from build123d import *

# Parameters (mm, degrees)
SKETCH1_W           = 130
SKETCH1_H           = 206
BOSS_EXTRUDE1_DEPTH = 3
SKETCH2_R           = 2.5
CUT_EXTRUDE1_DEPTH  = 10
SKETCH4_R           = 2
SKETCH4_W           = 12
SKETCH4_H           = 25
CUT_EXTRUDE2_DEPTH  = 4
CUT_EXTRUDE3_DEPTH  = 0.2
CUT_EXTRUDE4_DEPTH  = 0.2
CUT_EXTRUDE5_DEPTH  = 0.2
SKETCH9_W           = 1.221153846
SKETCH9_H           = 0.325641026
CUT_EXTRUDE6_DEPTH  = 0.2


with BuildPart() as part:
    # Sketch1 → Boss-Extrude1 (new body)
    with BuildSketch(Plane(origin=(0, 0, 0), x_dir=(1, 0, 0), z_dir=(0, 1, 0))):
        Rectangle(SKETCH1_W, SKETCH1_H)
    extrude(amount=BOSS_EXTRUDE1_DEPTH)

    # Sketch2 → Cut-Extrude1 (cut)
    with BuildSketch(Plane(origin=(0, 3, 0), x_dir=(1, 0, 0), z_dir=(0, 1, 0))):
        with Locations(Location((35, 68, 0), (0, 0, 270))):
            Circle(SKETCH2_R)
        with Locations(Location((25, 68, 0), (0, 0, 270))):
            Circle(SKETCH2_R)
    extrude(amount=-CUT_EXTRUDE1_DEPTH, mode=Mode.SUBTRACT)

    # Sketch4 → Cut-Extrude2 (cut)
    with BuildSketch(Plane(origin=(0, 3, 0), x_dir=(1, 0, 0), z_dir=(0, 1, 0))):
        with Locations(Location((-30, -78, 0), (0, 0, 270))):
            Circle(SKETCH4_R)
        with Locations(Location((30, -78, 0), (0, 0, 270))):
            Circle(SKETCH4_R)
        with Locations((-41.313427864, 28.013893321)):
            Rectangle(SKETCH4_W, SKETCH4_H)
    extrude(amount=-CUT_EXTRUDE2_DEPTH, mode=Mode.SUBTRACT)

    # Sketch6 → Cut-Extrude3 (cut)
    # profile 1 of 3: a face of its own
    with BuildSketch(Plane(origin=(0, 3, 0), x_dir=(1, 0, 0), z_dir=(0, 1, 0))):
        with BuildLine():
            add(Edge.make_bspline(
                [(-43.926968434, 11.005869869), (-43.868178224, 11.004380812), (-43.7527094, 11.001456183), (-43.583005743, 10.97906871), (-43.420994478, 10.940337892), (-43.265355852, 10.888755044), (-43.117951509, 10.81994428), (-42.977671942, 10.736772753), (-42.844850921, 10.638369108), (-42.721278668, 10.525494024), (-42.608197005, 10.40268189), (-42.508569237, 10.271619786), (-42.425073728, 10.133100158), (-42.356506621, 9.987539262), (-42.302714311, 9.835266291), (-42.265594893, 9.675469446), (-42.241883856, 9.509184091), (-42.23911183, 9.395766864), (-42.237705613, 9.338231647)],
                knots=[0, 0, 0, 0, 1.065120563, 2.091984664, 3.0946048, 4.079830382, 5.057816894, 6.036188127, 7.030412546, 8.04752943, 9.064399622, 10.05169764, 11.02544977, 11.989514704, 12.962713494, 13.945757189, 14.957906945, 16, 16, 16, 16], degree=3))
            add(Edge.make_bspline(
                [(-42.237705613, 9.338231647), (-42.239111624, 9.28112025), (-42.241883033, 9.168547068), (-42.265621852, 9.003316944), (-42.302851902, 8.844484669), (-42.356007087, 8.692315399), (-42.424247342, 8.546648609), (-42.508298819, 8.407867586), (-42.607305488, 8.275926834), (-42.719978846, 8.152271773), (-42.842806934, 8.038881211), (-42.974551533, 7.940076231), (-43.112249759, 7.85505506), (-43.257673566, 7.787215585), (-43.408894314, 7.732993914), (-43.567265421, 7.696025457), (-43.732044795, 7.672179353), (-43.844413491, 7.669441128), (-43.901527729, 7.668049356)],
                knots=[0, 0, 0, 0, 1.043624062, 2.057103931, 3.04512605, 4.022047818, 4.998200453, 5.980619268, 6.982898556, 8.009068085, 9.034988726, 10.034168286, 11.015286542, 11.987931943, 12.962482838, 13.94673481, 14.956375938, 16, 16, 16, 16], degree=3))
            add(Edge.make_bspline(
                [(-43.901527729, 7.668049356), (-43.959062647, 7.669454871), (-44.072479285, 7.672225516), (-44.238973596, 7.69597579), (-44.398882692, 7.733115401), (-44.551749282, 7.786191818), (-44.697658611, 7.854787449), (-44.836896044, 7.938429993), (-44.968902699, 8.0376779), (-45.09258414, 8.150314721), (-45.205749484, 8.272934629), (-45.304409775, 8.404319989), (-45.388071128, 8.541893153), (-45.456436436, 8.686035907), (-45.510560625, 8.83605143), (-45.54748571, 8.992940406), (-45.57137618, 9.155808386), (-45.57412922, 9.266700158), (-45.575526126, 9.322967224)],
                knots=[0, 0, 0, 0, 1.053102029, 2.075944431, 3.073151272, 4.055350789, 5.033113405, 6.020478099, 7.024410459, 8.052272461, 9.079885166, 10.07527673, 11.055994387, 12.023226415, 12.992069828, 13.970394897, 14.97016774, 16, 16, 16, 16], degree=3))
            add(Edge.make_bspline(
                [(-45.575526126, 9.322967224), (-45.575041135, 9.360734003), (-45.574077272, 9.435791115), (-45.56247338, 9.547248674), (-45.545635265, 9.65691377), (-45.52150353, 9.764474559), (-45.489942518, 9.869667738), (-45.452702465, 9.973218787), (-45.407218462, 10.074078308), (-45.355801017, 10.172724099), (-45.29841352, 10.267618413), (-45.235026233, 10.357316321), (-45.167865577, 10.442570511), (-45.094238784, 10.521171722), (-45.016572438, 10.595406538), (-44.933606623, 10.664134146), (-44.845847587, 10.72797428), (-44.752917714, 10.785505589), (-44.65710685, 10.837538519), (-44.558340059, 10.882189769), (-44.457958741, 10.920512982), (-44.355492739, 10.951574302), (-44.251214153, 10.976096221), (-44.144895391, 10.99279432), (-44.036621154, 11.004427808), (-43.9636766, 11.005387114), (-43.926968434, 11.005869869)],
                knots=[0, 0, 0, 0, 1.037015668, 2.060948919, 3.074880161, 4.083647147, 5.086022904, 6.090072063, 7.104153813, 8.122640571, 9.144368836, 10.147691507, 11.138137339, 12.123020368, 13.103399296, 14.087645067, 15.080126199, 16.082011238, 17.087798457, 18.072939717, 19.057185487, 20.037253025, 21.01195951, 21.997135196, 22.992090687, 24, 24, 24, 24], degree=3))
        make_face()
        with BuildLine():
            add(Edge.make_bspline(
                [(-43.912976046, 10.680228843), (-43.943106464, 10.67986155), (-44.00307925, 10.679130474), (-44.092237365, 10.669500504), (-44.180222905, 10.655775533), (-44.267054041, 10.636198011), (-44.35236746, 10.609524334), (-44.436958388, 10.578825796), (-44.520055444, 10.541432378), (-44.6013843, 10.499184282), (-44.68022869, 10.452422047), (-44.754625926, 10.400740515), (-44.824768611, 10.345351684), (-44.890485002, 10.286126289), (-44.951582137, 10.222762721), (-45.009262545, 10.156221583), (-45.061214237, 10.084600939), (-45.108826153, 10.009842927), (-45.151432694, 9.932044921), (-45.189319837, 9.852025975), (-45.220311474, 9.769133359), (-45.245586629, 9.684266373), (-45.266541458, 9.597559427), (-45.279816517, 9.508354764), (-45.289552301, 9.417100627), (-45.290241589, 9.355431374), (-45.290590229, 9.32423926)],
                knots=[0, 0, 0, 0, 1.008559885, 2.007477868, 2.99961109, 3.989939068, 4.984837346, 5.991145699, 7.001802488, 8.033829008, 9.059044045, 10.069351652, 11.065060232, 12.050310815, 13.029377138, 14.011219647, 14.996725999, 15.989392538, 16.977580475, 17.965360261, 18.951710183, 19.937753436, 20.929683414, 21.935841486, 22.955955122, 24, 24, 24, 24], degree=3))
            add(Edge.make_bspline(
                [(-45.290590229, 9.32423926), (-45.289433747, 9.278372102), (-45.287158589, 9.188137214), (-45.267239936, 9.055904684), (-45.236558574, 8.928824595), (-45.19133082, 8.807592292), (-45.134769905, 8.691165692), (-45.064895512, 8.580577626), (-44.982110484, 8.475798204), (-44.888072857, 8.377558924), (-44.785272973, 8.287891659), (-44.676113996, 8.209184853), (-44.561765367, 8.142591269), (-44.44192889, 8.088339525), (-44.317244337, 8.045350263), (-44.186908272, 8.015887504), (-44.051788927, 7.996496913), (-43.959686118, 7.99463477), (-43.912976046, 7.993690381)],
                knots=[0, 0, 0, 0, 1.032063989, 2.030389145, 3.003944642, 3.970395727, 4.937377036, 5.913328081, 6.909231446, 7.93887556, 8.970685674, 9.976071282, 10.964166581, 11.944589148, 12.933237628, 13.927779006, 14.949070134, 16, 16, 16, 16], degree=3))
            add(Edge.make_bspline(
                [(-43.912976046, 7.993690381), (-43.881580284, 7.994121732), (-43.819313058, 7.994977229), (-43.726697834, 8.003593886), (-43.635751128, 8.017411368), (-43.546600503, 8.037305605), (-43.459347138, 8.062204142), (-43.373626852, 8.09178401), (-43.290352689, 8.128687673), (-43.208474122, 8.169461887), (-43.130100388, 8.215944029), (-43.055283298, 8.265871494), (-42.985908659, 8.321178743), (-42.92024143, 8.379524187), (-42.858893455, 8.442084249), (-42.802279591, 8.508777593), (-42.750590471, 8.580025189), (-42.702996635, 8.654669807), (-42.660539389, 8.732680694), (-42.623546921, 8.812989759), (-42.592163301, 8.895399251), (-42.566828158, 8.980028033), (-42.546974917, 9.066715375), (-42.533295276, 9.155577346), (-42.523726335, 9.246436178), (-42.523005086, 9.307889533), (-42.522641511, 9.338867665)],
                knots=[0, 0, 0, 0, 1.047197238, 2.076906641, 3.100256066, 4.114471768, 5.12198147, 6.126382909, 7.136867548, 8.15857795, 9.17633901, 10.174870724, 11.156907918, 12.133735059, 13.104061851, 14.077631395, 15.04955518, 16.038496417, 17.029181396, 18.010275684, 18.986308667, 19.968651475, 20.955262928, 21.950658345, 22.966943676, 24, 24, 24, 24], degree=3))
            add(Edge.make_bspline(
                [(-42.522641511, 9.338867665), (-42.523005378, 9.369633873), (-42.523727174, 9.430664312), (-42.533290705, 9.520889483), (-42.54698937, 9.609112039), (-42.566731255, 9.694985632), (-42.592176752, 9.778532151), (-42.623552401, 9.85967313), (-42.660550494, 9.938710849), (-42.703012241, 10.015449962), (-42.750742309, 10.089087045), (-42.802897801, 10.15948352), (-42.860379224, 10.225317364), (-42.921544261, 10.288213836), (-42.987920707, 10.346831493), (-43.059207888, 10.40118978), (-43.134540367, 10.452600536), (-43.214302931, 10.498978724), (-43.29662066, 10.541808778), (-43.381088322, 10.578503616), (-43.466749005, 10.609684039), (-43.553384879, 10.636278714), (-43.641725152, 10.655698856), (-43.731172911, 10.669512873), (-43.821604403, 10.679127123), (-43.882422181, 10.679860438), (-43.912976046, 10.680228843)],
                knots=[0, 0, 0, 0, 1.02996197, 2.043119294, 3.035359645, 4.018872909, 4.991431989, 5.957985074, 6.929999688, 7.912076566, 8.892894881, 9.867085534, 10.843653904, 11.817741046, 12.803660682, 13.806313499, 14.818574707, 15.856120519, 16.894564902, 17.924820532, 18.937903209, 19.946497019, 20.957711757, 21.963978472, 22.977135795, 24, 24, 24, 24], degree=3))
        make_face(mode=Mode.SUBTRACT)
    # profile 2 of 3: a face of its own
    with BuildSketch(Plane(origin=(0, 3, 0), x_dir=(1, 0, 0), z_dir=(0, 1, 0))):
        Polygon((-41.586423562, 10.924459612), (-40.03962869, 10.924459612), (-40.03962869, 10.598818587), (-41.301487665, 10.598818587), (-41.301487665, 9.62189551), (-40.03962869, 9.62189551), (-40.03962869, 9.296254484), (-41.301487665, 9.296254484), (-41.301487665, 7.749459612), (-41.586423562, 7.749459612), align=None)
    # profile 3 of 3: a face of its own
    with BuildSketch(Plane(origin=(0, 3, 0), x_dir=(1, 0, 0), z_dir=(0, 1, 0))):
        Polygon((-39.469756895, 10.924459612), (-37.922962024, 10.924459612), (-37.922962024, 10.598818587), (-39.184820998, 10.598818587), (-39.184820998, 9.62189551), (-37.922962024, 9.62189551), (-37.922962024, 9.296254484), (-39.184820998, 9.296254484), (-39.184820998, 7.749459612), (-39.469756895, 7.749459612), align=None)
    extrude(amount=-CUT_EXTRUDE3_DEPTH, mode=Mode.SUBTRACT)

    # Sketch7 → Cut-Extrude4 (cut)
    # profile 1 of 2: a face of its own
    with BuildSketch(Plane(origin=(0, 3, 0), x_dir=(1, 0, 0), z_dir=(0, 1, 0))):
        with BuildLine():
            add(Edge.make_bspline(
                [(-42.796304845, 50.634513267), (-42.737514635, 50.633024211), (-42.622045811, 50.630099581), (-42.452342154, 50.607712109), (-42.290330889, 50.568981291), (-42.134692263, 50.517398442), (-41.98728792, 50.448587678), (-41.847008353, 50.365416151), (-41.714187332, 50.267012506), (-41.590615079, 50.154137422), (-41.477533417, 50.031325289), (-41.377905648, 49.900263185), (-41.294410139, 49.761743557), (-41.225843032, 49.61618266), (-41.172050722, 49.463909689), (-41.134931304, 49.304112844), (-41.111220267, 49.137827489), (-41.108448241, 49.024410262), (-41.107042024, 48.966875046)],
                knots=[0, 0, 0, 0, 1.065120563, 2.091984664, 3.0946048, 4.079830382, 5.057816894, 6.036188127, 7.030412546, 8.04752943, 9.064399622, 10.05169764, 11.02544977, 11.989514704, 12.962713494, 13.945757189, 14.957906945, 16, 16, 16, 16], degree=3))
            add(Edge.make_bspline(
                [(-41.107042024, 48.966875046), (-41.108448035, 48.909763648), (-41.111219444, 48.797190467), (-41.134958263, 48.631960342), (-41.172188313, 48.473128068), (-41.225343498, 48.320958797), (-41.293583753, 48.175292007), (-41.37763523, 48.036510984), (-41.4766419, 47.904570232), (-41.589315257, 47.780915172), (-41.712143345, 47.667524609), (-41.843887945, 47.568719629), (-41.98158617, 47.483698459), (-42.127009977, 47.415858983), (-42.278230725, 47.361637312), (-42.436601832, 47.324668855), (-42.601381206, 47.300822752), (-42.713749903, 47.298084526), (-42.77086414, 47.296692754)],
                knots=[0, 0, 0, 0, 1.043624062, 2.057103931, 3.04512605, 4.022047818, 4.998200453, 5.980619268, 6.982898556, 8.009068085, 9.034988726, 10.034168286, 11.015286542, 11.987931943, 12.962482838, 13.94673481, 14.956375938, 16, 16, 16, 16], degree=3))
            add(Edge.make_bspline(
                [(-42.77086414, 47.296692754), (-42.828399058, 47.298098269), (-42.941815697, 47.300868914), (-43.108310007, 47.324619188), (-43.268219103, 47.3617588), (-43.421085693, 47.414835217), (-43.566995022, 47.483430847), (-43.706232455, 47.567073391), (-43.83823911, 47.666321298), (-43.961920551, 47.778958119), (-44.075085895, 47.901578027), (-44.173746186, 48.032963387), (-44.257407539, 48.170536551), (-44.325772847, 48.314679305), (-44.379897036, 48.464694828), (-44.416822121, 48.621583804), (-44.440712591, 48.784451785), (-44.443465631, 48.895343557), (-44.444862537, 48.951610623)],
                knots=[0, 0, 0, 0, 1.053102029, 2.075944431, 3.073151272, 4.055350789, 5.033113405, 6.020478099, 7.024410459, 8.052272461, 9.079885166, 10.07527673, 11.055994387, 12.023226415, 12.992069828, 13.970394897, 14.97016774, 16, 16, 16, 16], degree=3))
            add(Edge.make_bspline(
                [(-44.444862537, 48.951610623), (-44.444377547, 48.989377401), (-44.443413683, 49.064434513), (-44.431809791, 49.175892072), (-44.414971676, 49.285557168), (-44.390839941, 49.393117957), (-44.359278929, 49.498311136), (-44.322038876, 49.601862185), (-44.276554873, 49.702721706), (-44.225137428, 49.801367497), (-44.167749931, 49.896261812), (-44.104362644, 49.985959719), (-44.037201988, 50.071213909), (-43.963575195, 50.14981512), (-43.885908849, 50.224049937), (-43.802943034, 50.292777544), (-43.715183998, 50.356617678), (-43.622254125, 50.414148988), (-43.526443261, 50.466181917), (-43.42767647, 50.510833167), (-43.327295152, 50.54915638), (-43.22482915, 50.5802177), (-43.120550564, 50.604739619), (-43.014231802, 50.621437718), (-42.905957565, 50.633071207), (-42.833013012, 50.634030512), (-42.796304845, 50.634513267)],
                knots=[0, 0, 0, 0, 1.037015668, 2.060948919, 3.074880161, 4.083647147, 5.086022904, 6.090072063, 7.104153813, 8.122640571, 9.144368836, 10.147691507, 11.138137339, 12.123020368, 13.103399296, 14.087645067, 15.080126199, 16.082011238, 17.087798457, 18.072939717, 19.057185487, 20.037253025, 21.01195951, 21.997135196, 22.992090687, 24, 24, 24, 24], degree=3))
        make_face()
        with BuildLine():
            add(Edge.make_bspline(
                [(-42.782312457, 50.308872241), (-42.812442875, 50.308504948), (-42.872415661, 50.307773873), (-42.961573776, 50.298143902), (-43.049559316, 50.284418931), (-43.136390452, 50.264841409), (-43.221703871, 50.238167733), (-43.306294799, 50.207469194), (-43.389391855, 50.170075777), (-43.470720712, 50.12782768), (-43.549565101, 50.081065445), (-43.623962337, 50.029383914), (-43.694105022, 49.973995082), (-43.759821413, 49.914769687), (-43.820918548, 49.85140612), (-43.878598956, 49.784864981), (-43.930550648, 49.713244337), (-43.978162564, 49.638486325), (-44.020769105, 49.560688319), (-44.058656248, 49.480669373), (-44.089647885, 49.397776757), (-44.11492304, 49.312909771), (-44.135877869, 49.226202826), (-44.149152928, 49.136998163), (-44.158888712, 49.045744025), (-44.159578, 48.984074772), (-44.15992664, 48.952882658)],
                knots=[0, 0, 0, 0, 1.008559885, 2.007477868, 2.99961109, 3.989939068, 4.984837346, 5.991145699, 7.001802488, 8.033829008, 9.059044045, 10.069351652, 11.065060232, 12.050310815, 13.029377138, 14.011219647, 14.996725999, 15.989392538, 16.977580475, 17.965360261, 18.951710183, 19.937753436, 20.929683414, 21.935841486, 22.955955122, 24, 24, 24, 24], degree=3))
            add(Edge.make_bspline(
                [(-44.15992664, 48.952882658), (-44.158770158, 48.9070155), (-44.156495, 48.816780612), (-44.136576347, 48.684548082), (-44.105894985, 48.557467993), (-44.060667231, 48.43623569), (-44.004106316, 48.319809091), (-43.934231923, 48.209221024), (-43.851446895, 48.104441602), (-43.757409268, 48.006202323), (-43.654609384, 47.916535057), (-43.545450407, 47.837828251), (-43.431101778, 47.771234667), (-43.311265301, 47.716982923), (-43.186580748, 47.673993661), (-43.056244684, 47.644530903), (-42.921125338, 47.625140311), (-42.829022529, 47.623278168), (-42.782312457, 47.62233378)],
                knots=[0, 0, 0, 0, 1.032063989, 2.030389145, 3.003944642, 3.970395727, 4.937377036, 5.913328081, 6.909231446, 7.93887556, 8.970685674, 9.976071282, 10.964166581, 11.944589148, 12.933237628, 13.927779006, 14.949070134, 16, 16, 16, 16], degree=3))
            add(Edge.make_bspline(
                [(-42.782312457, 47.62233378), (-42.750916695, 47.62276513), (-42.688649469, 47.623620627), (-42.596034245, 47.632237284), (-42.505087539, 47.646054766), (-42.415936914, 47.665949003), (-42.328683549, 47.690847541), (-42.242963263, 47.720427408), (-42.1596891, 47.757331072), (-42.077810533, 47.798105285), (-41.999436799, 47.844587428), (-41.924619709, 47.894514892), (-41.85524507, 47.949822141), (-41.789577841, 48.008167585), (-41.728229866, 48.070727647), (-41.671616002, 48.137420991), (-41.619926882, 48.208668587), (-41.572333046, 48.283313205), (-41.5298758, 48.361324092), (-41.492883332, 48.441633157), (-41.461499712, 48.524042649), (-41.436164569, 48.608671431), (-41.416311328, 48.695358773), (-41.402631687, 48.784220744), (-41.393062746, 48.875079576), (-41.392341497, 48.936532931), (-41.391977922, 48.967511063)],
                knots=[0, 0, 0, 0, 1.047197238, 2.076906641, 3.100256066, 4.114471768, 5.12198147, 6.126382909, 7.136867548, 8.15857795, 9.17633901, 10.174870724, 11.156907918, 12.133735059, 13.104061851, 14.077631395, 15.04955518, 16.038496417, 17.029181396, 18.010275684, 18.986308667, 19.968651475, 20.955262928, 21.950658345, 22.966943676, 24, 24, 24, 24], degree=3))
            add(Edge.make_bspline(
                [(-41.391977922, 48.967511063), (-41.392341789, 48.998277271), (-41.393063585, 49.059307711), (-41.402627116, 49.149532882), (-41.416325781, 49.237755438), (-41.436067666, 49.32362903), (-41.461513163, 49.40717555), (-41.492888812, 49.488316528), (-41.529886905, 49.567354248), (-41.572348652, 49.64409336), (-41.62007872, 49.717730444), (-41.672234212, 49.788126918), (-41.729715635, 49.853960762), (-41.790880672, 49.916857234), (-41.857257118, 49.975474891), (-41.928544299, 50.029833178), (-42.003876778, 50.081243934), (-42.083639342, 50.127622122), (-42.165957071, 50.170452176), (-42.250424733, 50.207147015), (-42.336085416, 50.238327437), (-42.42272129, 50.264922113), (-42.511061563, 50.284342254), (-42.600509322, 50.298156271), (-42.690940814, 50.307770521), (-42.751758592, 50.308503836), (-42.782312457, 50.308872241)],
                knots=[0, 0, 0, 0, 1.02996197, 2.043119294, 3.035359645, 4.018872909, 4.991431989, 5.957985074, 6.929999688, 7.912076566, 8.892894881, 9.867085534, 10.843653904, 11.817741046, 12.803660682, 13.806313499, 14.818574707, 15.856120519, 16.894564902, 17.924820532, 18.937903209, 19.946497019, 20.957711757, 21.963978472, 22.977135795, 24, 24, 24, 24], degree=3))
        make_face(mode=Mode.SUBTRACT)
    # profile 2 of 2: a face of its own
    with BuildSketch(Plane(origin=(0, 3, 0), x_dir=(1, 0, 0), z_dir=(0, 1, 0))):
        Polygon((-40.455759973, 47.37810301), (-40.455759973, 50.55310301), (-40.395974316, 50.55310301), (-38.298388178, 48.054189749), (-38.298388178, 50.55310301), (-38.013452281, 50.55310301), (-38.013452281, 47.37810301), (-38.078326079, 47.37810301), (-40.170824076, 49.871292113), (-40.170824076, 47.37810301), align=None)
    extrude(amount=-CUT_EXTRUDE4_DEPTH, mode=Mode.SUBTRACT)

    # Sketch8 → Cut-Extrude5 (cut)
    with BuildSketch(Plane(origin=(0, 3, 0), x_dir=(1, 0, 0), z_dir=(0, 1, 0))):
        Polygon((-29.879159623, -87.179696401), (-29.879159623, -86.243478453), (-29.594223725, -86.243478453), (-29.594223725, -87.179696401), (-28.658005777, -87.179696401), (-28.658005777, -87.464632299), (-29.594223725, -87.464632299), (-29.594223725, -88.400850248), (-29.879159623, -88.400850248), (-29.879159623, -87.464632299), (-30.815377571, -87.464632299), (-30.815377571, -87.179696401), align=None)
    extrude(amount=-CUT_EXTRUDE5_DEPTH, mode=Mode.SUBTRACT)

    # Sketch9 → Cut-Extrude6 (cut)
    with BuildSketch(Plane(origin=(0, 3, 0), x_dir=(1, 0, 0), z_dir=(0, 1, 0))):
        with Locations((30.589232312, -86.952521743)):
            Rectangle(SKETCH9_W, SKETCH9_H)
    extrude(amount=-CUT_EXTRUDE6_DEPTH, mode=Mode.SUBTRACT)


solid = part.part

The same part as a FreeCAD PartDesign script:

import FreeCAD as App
import Part
import Sketcher

V = App.Vector
Q = App.Units.Quantity


def add_polygon(sketch, points):
    """Adds a closed chain of lines whose ends are joined by coincident constraints."""
    first, n = sketch.GeometryCount, len(points)
    for a, b in zip(points, points[1:] + points[:1]):
        sketch.addGeometry(Part.LineSegment(App.Vector(*a, 0), App.Vector(*b, 0)), False)
    for i in range(n):
        sketch.addConstraint(Sketcher.Constraint("Coincident", first + i, 2, first + (i + 1) % n, 1))

doc = App.newDocument("Part")
body = doc.addObject("PartDesign::Body", "Body")

# Sketch on XZ plane
sketch1 = body.newObject("Sketcher::SketchObject", "Sketch")
sketch1.AttachmentSupport = (doc.getObject("XZ_Plane"), [""])
sketch1.MapMode = "FlatFace"
add_polygon(sketch1, [(-65, -103), (-65, 103), (65, 103), (65, -103)])  # lines 0-3
sketch1.addConstraint([
    Sketcher.Constraint("Vertical", 0),
    Sketcher.Constraint("Horizontal", 1),
    Sketcher.Constraint("Vertical", 2),
    Sketcher.Constraint("Horizontal", 3),
    Sketcher.Constraint("Symmetric", 0, 2, 2, 2, -1, 1),
    Sketcher.Constraint("DistanceX", 1, 1, 1, 2, Q("130 mm")),
    Sketcher.Constraint("DistanceY", 0, 1, 0, 2, Q("206 mm")),
])
pad1 = body.newObject("PartDesign::Pad", "Pad")
pad1.Profile = sketch1
pad1.Length = 3
pad1.Reversed = True

# Sketch on XZ plane
sketch2 = body.newObject("Sketcher::SketchObject", "Sketch001")
sketch2.AttachmentSupport = (doc.getObject("XZ_Plane"), [""])
sketch2.MapMode = "FlatFace"
sketch2.AttachmentOffset = App.Placement(V(0, 0, -3), App.Rotation())
sketch2.addGeometry([
    Part.Circle(V(35, -68, 0), V(0, 0, 1), 2.5),
    Part.Circle(V(25, -68, 0), V(0, 0, 1), 2.5),
], False)
sketch2.addConstraint([
    Sketcher.Constraint("Equal", 0, 1),
    Sketcher.Constraint("Horizontal", 0, 3, 1, 3),
    Sketcher.Constraint("Diameter", 0, Q("5 mm")),
    Sketcher.Constraint("DistanceX", -1, 1, 0, 3, Q("35 mm")),
    Sketcher.Constraint("DistanceY", 0, 3, -1, 1, Q("68 mm")),
    Sketcher.Constraint("DistanceX", -1, 1, 1, 3, Q("25 mm")),
])
pocket1 = body.newObject("PartDesign::Pocket", "Pocket")
pocket1.Profile = sketch2
pocket1.Length = 10
pocket1.Reversed = True

# Sketch on XZ plane
sketch3 = body.newObject("Sketcher::SketchObject", "Sketch002")
sketch3.AttachmentSupport = (doc.getObject("XZ_Plane"), [""])
sketch3.MapMode = "FlatFace"
sketch3.AttachmentOffset = App.Placement(V(0, 0, -3), App.Rotation())
sketch3.addGeometry(Part.Circle(V(-30, 78, 0), V(0, 0, 1), 2), False)  # 0
sketch3.addGeometry(Part.Circle(V(30, 78, 0), V(0, 0, 1), 2), False)  # 1
add_polygon(sketch3, [(-47.3, -40.5), (-47.3, -15.5), (-35.3, -15.5), (-35.3, -40.5)])  # lines 2-5
sketch3.addConstraint([
    Sketcher.Constraint("Vertical", 2),
    Sketcher.Constraint("Horizontal", 3),
    Sketcher.Constraint("Vertical", 4),
    Sketcher.Constraint("Horizontal", 5),
    Sketcher.Constraint("Equal", 0, 1),
    Sketcher.Constraint("Symmetric", 0, 3, 1, 3, -2),
    Sketcher.Constraint("Diameter", 0, Q("4 mm")),
    Sketcher.Constraint("DistanceX", 3, 1, 3, 2, Q("12 mm")),
    Sketcher.Constraint("DistanceY", 2, 1, 2, 2, Q("25 mm")),
    Sketcher.Constraint("DistanceX", 0, 3, -1, 1, Q("30 mm")),
    Sketcher.Constraint("DistanceY", -1, 1, 0, 3, Q("78 mm")),
    Sketcher.Constraint("DistanceX", 2, 2, -1, 1, Q("47.313428 mm")),
    Sketcher.Constraint("DistanceY", 2, 2, -1, 1, Q("15.513893 mm")),
])
pocket2 = body.newObject("PartDesign::Pocket", "Pocket001")
pocket2.Profile = sketch3
pocket2.Length = 4
pocket2.Reversed = True

# Sketch on XZ plane
sketch4 = body.newObject("Sketcher::SketchObject", "Sketch003")
sketch4.AttachmentSupport = (doc.getObject("XZ_Plane"), [""])
sketch4.MapMode = "FlatFace"
sketch4.AttachmentOffset = App.Placement(V(0, 0, -3), App.Rotation())
sketch4.addGeometry(Part.BSplineCurve([V(-43.926968, -11.00587, 0), V(-43.868178, -11.004381, 0), V(-43.752709, -11.001456, 0), V(-43.583006, -10.979069, 0), V(-43.420994, -10.940338, 0), V(-43.265356, -10.888755, 0), V(-43.117952, -10.819944, 0), V(-42.977672, -10.736773, 0), V(-42.844851, -10.638369, 0), V(-42.721279, -10.525494, 0), V(-42.608197, -10.402682, 0), V(-42.508569, -10.27162, 0), V(-42.425074, -10.1331, 0), V(-42.356507, -9.987539, 0), V(-42.302714, -9.835266, 0), V(-42.265595, -9.675469, 0), V(-42.241884, -9.509184, 0), V(-42.239112, -9.395767, 0), V(-42.237706, -9.338232, 0)], [4, 1, 1, 1, 1, 1, 1, 1, 1, 1, 1, 1, 1, 1, 1, 1, 4], [0, 1.065120563, 2.091984664, 3.0946048, 4.079830382, 5.057816894, 6.036188127, 7.030412546, 8.04752943, 9.064399622, 10.05169764, 11.02544977, 11.989514704, 12.962713494, 13.945757189, 14.957906945, 16], False, 3, [1, 1, 1, 1, 1, 1, 1, 1, 1, 1, 1, 1, 1, 1, 1, 1, 1, 1, 1], False), False)  # 0
sketch4.addGeometry(Part.BSplineCurve([V(-45.575526, -9.322967, 0), V(-45.575041, -9.360734, 0), V(-45.574077, -9.435791, 0), V(-45.562473, -9.547249, 0), V(-45.545635, -9.656914, 0), V(-45.521504, -9.764475, 0), V(-45.489943, -9.869668, 0), V(-45.452702, -9.973219, 0), V(-45.407218, -10.074078, 0), V(-45.355801, -10.172724, 0), V(-45.298414, -10.267618, 0), V(-45.235026, -10.357316, 0), V(-45.167866, -10.442571, 0), V(-45.094239, -10.521172, 0), V(-45.016572, -10.595407, 0), V(-44.933607, -10.664134, 0), V(-44.845848, -10.727974, 0), V(-44.752918, -10.785506, 0), V(-44.657107, -10.837539, 0), V(-44.55834, -10.88219, 0), V(-44.457959, -10.920513, 0), V(-44.355493, -10.951574, 0), V(-44.251214, -10.976096, 0), V(-44.144895, -10.992794, 0), V(-44.036621, -11.004428, 0), V(-43.963677, -11.005387, 0), V(-43.926968, -11.00587, 0)], [4, 1, 1, 1, 1, 1, 1, 1, 1, 1, 1, 1, 1, 1, 1, 1, 1, 1, 1, 1, 1, 1, 1, 1, 4], [0, 1.037015668, 2.060948919, 3.074880161, 4.083647147, 5.086022904, 6.090072063, 7.104153813, 8.122640571, 9.144368836, 10.147691507, 11.138137339, 12.123020368, 13.103399296, 14.087645067, 15.080126199, 16.082011238, 17.087798457, 18.072939717, 19.057185487, 20.037253025, 21.01195951, 21.997135196, 22.992090687, 24], False, 3, [1, 1, 1, 1, 1, 1, 1, 1, 1, 1, 1, 1, 1, 1, 1, 1, 1, 1, 1, 1, 1, 1, 1, 1, 1, 1, 1], False), False)  # 1
sketch4.addGeometry(Part.BSplineCurve([V(-43.901528, -7.668049, 0), V(-43.959063, -7.669455, 0), V(-44.072479, -7.672226, 0), V(-44.238974, -7.695976, 0), V(-44.398883, -7.733115, 0), V(-44.551749, -7.786192, 0), V(-44.697659, -7.854787, 0), V(-44.836896, -7.93843, 0), V(-44.968903, -8.037678, 0), V(-45.092584, -8.150315, 0), V(-45.205749, -8.272935, 0), V(-45.30441, -8.40432, 0), V(-45.388071, -8.541893, 0), V(-45.456436, -8.686036, 0), V(-45.510561, -8.836051, 0), V(-45.547486, -8.99294, 0), V(-45.571376, -9.155808, 0), V(-45.574129, -9.2667, 0), V(-45.575526, -9.322967, 0)], [4, 1, 1, 1, 1, 1, 1, 1, 1, 1, 1, 1, 1, 1, 1, 1, 4], [0, 1.053102029, 2.075944431, 3.073151272, 4.055350789, 5.033113405, 6.020478099, 7.024410459, 8.052272461, 9.079885166, 10.07527673, 11.055994387, 12.023226415, 12.992069828, 13.970394897, 14.97016774, 16], False, 3, [1, 1, 1, 1, 1, 1, 1, 1, 1, 1, 1, 1, 1, 1, 1, 1, 1, 1, 1], False), False)  # 2
sketch4.addGeometry(Part.BSplineCurve([V(-42.237706, -9.338232, 0), V(-42.239112, -9.28112, 0), V(-42.241883, -9.168547, 0), V(-42.265622, -9.003317, 0), V(-42.302852, -8.844485, 0), V(-42.356007, -8.692315, 0), V(-42.424247, -8.546649, 0), V(-42.508299, -8.407868, 0), V(-42.607305, -8.275927, 0), V(-42.719979, -8.152272, 0), V(-42.842807, -8.038881, 0), V(-42.974552, -7.940076, 0), V(-43.11225, -7.855055, 0), V(-43.257674, -7.787216, 0), V(-43.408894, -7.732994, 0), V(-43.567265, -7.696025, 0), V(-43.732045, -7.672179, 0), V(-43.844413, -7.669441, 0), V(-43.901528, -7.668049, 0)], [4, 1, 1, 1, 1, 1, 1, 1, 1, 1, 1, 1, 1, 1, 1, 1, 4], [0, 1.043624062, 2.057103931, 3.04512605, 4.022047818, 4.998200453, 5.980619268, 6.982898556, 8.009068085, 9.034988726, 10.034168286, 11.015286542, 11.987931943, 12.962482838, 13.94673481, 14.956375938, 16], False, 3, [1, 1, 1, 1, 1, 1, 1, 1, 1, 1, 1, 1, 1, 1, 1, 1, 1, 1, 1], False), False)  # 3
sketch4.addGeometry(Part.BSplineCurve([V(-42.522642, -9.338868, 0), V(-42.523005, -9.369634, 0), V(-42.523727, -9.430664, 0), V(-42.533291, -9.520889, 0), V(-42.546989, -9.609112, 0), V(-42.566731, -9.694986, 0), V(-42.592177, -9.778532, 0), V(-42.623552, -9.859673, 0), V(-42.66055, -9.938711, 0), V(-42.703012, -10.01545, 0), V(-42.750742, -10.089087, 0), V(-42.802898, -10.159484, 0), V(-42.860379, -10.225317, 0), V(-42.921544, -10.288214, 0), V(-42.987921, -10.346831, 0), V(-43.059208, -10.40119, 0), V(-43.13454, -10.452601, 0), V(-43.214303, -10.498979, 0), V(-43.296621, -10.541809, 0), V(-43.381088, -10.578504, 0), V(-43.466749, -10.609684, 0), V(-43.553385, -10.636279, 0), V(-43.641725, -10.655699, 0), V(-43.731173, -10.669513, 0), V(-43.821604, -10.679127, 0), V(-43.882422, -10.67986, 0), V(-43.912976, -10.680229, 0)], [4, 1, 1, 1, 1, 1, 1, 1, 1, 1, 1, 1, 1, 1, 1, 1, 1, 1, 1, 1, 1, 1, 1, 1, 4], [0, 1.02996197, 2.043119294, 3.035359645, 4.018872909, 4.991431989, 5.957985074, 6.929999688, 7.912076566, 8.892894881, 9.867085534, 10.843653904, 11.817741046, 12.803660682, 13.806313499, 14.818574707, 15.856120519, 16.894564902, 17.924820532, 18.937903209, 19.946497019, 20.957711757, 21.963978472, 22.977135795, 24], False, 3, [1, 1, 1, 1, 1, 1, 1, 1, 1, 1, 1, 1, 1, 1, 1, 1, 1, 1, 1, 1, 1, 1, 1, 1, 1, 1, 1], False), False)  # 4
sketch4.addGeometry(Part.BSplineCurve([V(-43.912976, -7.99369, 0), V(-43.88158, -7.994122, 0), V(-43.819313, -7.994977, 0), V(-43.726698, -8.003594, 0), V(-43.635751, -8.017411, 0), V(-43.546601, -8.037306, 0), V(-43.459347, -8.062204, 0), V(-43.373627, -8.091784, 0), V(-43.290353, -8.128688, 0), V(-43.208474, -8.169462, 0), V(-43.1301, -8.215944, 0), V(-43.055283, -8.265871, 0), V(-42.985909, -8.321179, 0), V(-42.920241, -8.379524, 0), V(-42.858893, -8.442084, 0), V(-42.80228, -8.508778, 0), V(-42.75059, -8.580025, 0), V(-42.702997, -8.65467, 0), V(-42.660539, -8.732681, 0), V(-42.623547, -8.81299, 0), V(-42.592163, -8.895399, 0), V(-42.566828, -8.980028, 0), V(-42.546975, -9.066715, 0), V(-42.533295, -9.155577, 0), V(-42.523726, -9.246436, 0), V(-42.523005, -9.30789, 0), V(-42.522642, -9.338868, 0)], [4, 1, 1, 1, 1, 1, 1, 1, 1, 1, 1, 1, 1, 1, 1, 1, 1, 1, 1, 1, 1, 1, 1, 1, 4], [0, 1.047197238, 2.076906641, 3.100256066, 4.114471768, 5.12198147, 6.126382909, 7.136867548, 8.15857795, 9.17633901, 10.174870724, 11.156907918, 12.133735059, 13.104061851, 14.077631395, 15.04955518, 16.038496417, 17.029181396, 18.010275684, 18.986308667, 19.968651475, 20.955262928, 21.950658345, 22.966943676, 24], False, 3, [1, 1, 1, 1, 1, 1, 1, 1, 1, 1, 1, 1, 1, 1, 1, 1, 1, 1, 1, 1, 1, 1, 1, 1, 1, 1, 1], False), False)  # 5
sketch4.addGeometry(Part.BSplineCurve([V(-45.29059, -9.324239, 0), V(-45.289434, -9.278372, 0), V(-45.287159, -9.188137, 0), V(-45.26724, -9.055905, 0), V(-45.236559, -8.928825, 0), V(-45.191331, -8.807592, 0), V(-45.13477, -8.691166, 0), V(-45.064896, -8.580578, 0), V(-44.98211, -8.475798, 0), V(-44.888073, -8.377559, 0), V(-44.785273, -8.287892, 0), V(-44.676114, -8.209185, 0), V(-44.561765, -8.142591, 0), V(-44.441929, -8.08834, 0), V(-44.317244, -8.04535, 0), V(-44.186908, -8.015888, 0), V(-44.051789, -7.996497, 0), V(-43.959686, -7.994635, 0), V(-43.912976, -7.99369, 0)], [4, 1, 1, 1, 1, 1, 1, 1, 1, 1, 1, 1, 1, 1, 1, 1, 4], [0, 1.032063989, 2.030389145, 3.003944642, 3.970395727, 4.937377036, 5.913328081, 6.909231446, 7.93887556, 8.970685674, 9.976071282, 10.964166581, 11.944589148, 12.933237628, 13.927779006, 14.949070134, 16], False, 3, [1, 1, 1, 1, 1, 1, 1, 1, 1, 1, 1, 1, 1, 1, 1, 1, 1, 1, 1], False), False)  # 6
sketch4.addGeometry(Part.BSplineCurve([V(-43.912976, -10.680229, 0), V(-43.943106, -10.679862, 0), V(-44.003079, -10.67913, 0), V(-44.092237, -10.669501, 0), V(-44.180223, -10.655776, 0), V(-44.267054, -10.636198, 0), V(-44.352367, -10.609524, 0), V(-44.436958, -10.578826, 0), V(-44.520055, -10.541432, 0), V(-44.601384, -10.499184, 0), V(-44.680229, -10.452422, 0), V(-44.754626, -10.400741, 0), V(-44.824769, -10.345352, 0), V(-44.890485, -10.286126, 0), V(-44.951582, -10.222763, 0), V(-45.009263, -10.156222, 0), V(-45.061214, -10.084601, 0), V(-45.108826, -10.009843, 0), V(-45.151433, -9.932045, 0), V(-45.18932, -9.852026, 0), V(-45.220311, -9.769133, 0), V(-45.245587, -9.684266, 0), V(-45.266541, -9.597559, 0), V(-45.279817, -9.508355, 0), V(-45.289552, -9.417101, 0), V(-45.290242, -9.355431, 0), V(-45.29059, -9.324239, 0)], [4, 1, 1, 1, 1, 1, 1, 1, 1, 1, 1, 1, 1, 1, 1, 1, 1, 1, 1, 1, 1, 1, 1, 1, 4], [0, 1.008559885, 2.007477868, 2.99961109, 3.989939068, 4.984837346, 5.991145699, 7.001802488, 8.033829008, 9.059044045, 10.069351652, 11.065060232, 12.050310815, 13.029377138, 14.011219647, 14.996725999, 15.989392538, 16.977580475, 17.965360261, 18.951710183, 19.937753436, 20.929683414, 21.935841486, 22.955955122, 24], False, 3, [1, 1, 1, 1, 1, 1, 1, 1, 1, 1, 1, 1, 1, 1, 1, 1, 1, 1, 1, 1, 1, 1, 1, 1, 1, 1, 1], False), False)  # 7
add_polygon(sketch4, [(-40.039629, -10.92446), (-41.586424, -10.92446), (-41.586424, -7.74946), (-41.301488, -7.74946), (-41.301488, -9.296254), (-40.039629, -9.296254), (-40.039629, -9.621896), (-41.301488, -9.621896), (-41.301488, -10.598819), (-40.039629, -10.598819)])  # lines 8-17
add_polygon(sketch4, [(-37.922962, -10.92446), (-39.469757, -10.92446), (-39.469757, -7.74946), (-39.184821, -7.74946), (-39.184821, -9.296254), (-37.922962, -9.296254), (-37.922962, -9.621896), (-39.184821, -9.621896), (-39.184821, -10.598819), (-37.922962, -10.598819)])  # lines 18-27
sketch4.addConstraint([
    Sketcher.Constraint("Block", 0),
    Sketcher.Constraint("Block", 1),
    Sketcher.Constraint("Block", 2),
    Sketcher.Constraint("Block", 3),
    Sketcher.Constraint("Block", 4),
    Sketcher.Constraint("Block", 5),
    Sketcher.Constraint("Block", 6),
    Sketcher.Constraint("Block", 7),
    Sketcher.Constraint("Horizontal", 8),
    Sketcher.Constraint("Vertical", 9),
    Sketcher.Constraint("Horizontal", 10),
    Sketcher.Constraint("Vertical", 11),
    Sketcher.Constraint("Horizontal", 12),
    Sketcher.Constraint("Vertical", 13),
    Sketcher.Constraint("Horizontal", 14),
    Sketcher.Constraint("Vertical", 15),
    Sketcher.Constraint("Horizontal", 16),
    Sketcher.Constraint("Vertical", 17),
    Sketcher.Constraint("Horizontal", 18),
    Sketcher.Constraint("Vertical", 19),
    Sketcher.Constraint("Horizontal", 20),
    Sketcher.Constraint("Vertical", 21),
    Sketcher.Constraint("Horizontal", 22),
    Sketcher.Constraint("Vertical", 23),
    Sketcher.Constraint("Horizontal", 24),
    Sketcher.Constraint("Vertical", 25),
    Sketcher.Constraint("Horizontal", 26),
    Sketcher.Constraint("Vertical", 27),
    Sketcher.Constraint("Horizontal", 17, 2, 18, 2),
    Sketcher.Constraint("Horizontal", 10, 2, 19, 2),
    Sketcher.Constraint("Horizontal", 12, 2, 21, 2),
    Sketcher.Constraint("Horizontal", 14, 2, 23, 2),
    Sketcher.Constraint("Horizontal", 16, 2, 25, 2),
    Sketcher.Constraint("Vertical", 11, 2, 14, 2),
    Sketcher.Constraint("Vertical", 13, 2, 16, 2),
    Sketcher.Constraint("Vertical", 21, 2, 24, 2),
    Sketcher.Constraint("Vertical", 23, 2, 26, 2),
    Sketcher.Constraint("Equal", 8, 18),
    Sketcher.Constraint("Equal", 10, 20),
    Sketcher.Constraint("Equal", 18, 11),
    Sketcher.Constraint("Equal", 13, 17),
    Sketcher.Constraint("DistanceY", 9, 1, 9, 2, Q("3.175 mm")),
    Sketcher.Constraint("DistanceX", 12, 1, 12, 2, Q("1.261859 mm")),
    Sketcher.Constraint("DistanceY", 13, 2, 13, 1, Q("0.325641 mm")),
    Sketcher.Constraint("DistanceX", 8, 2, 8, 1, Q("1.546795 mm")),
    Sketcher.Constraint("DistanceY", 8, 2, -1, 1, Q("10.92446 mm")),
    Sketcher.Constraint("DistanceX", 12, 2, -1, 1, Q("40.039629 mm")),
    Sketcher.Constraint("DistanceX", 20, 2, -1, 1, Q("39.184821 mm")),
])
pocket3 = body.newObject("PartDesign::Pocket", "Pocket002")
pocket3.Profile = sketch4
pocket3.Length = 0.2
pocket3.Reversed = True

# Sketch on XZ plane
sketch5 = body.newObject("Sketcher::SketchObject", "Sketch004")
sketch5.AttachmentSupport = (doc.getObject("XZ_Plane"), [""])
sketch5.MapMode = "FlatFace"
sketch5.AttachmentOffset = App.Placement(V(0, 0, -3), App.Rotation())
sketch5.addGeometry(Part.BSplineCurve([V(-42.796305, -50.634513, 0), V(-42.737515, -50.633024, 0), V(-42.622046, -50.6301, 0), V(-42.452342, -50.607712, 0), V(-42.290331, -50.568981, 0), V(-42.134692, -50.517398, 0), V(-41.987288, -50.448588, 0), V(-41.847008, -50.365416, 0), V(-41.714187, -50.267013, 0), V(-41.590615, -50.154137, 0), V(-41.477533, -50.031325, 0), V(-41.377906, -49.900263, 0), V(-41.29441, -49.761744, 0), V(-41.225843, -49.616183, 0), V(-41.172051, -49.46391, 0), V(-41.134931, -49.304113, 0), V(-41.11122, -49.137827, 0), V(-41.108448, -49.02441, 0), V(-41.107042, -48.966875, 0)], [4, 1, 1, 1, 1, 1, 1, 1, 1, 1, 1, 1, 1, 1, 1, 1, 4], [0, 1.065120563, 2.091984664, 3.0946048, 4.079830382, 5.057816894, 6.036188127, 7.030412546, 8.04752943, 9.064399622, 10.05169764, 11.02544977, 11.989514704, 12.962713494, 13.945757189, 14.957906945, 16], False, 3, [1, 1, 1, 1, 1, 1, 1, 1, 1, 1, 1, 1, 1, 1, 1, 1, 1, 1, 1], False), False)  # 0
sketch5.addGeometry(Part.BSplineCurve([V(-44.444863, -48.951611, 0), V(-44.444378, -48.989377, 0), V(-44.443414, -49.064435, 0), V(-44.43181, -49.175892, 0), V(-44.414972, -49.285557, 0), V(-44.39084, -49.393118, 0), V(-44.359279, -49.498311, 0), V(-44.322039, -49.601862, 0), V(-44.276555, -49.702722, 0), V(-44.225137, -49.801367, 0), V(-44.16775, -49.896262, 0), V(-44.104363, -49.98596, 0), V(-44.037202, -50.071214, 0), V(-43.963575, -50.149815, 0), V(-43.885909, -50.22405, 0), V(-43.802943, -50.292778, 0), V(-43.715184, -50.356618, 0), V(-43.622254, -50.414149, 0), V(-43.526443, -50.466182, 0), V(-43.427676, -50.510833, 0), V(-43.327295, -50.549156, 0), V(-43.224829, -50.580218, 0), V(-43.120551, -50.60474, 0), V(-43.014232, -50.621438, 0), V(-42.905958, -50.633071, 0), V(-42.833013, -50.634031, 0), V(-42.796305, -50.634513, 0)], [4, 1, 1, 1, 1, 1, 1, 1, 1, 1, 1, 1, 1, 1, 1, 1, 1, 1, 1, 1, 1, 1, 1, 1, 4], [0, 1.037015668, 2.060948919, 3.074880161, 4.083647147, 5.086022904, 6.090072063, 7.104153813, 8.122640571, 9.144368836, 10.147691507, 11.138137339, 12.123020368, 13.103399296, 14.087645067, 15.080126199, 16.082011238, 17.087798457, 18.072939717, 19.057185487, 20.037253025, 21.01195951, 21.997135196, 22.992090687, 24], False, 3, [1, 1, 1, 1, 1, 1, 1, 1, 1, 1, 1, 1, 1, 1, 1, 1, 1, 1, 1, 1, 1, 1, 1, 1, 1, 1, 1], False), False)  # 1
sketch5.addGeometry(Part.BSplineCurve([V(-42.770864, -47.296693, 0), V(-42.828399, -47.298098, 0), V(-42.941816, -47.300869, 0), V(-43.10831, -47.324619, 0), V(-43.268219, -47.361759, 0), V(-43.421086, -47.414835, 0), V(-43.566995, -47.483431, 0), V(-43.706232, -47.567073, 0), V(-43.838239, -47.666321, 0), V(-43.961921, -47.778958, 0), V(-44.075086, -47.901578, 0), V(-44.173746, -48.032963, 0), V(-44.257408, -48.170537, 0), V(-44.325773, -48.314679, 0), V(-44.379897, -48.464695, 0), V(-44.416822, -48.621584, 0), V(-44.440713, -48.784452, 0), V(-44.443466, -48.895344, 0), V(-44.444863, -48.951611, 0)], [4, 1, 1, 1, 1, 1, 1, 1, 1, 1, 1, 1, 1, 1, 1, 1, 4], [0, 1.053102029, 2.075944431, 3.073151272, 4.055350789, 5.033113405, 6.020478099, 7.024410459, 8.052272461, 9.079885166, 10.07527673, 11.055994387, 12.023226415, 12.992069828, 13.970394897, 14.97016774, 16], False, 3, [1, 1, 1, 1, 1, 1, 1, 1, 1, 1, 1, 1, 1, 1, 1, 1, 1, 1, 1], False), False)  # 2
sketch5.addGeometry(Part.BSplineCurve([V(-41.107042, -48.966875, 0), V(-41.108448, -48.909764, 0), V(-41.111219, -48.79719, 0), V(-41.134958, -48.63196, 0), V(-41.172188, -48.473128, 0), V(-41.225343, -48.320959, 0), V(-41.293584, -48.175292, 0), V(-41.377635, -48.036511, 0), V(-41.476642, -47.90457, 0), V(-41.589315, -47.780915, 0), V(-41.712143, -47.667525, 0), V(-41.843888, -47.56872, 0), V(-41.981586, -47.483698, 0), V(-42.12701, -47.415859, 0), V(-42.278231, -47.361637, 0), V(-42.436602, -47.324669, 0), V(-42.601381, -47.300823, 0), V(-42.71375, -47.298085, 0), V(-42.770864, -47.296693, 0)], [4, 1, 1, 1, 1, 1, 1, 1, 1, 1, 1, 1, 1, 1, 1, 1, 4], [0, 1.043624062, 2.057103931, 3.04512605, 4.022047818, 4.998200453, 5.980619268, 6.982898556, 8.009068085, 9.034988726, 10.034168286, 11.015286542, 11.987931943, 12.962482838, 13.94673481, 14.956375938, 16], False, 3, [1, 1, 1, 1, 1, 1, 1, 1, 1, 1, 1, 1, 1, 1, 1, 1, 1, 1, 1], False), False)  # 3
sketch5.addGeometry(Part.BSplineCurve([V(-41.391978, -48.967511, 0), V(-41.392342, -48.998277, 0), V(-41.393064, -49.059308, 0), V(-41.402627, -49.149533, 0), V(-41.416326, -49.237755, 0), V(-41.436068, -49.323629, 0), V(-41.461513, -49.407176, 0), V(-41.492889, -49.488317, 0), V(-41.529887, -49.567354, 0), V(-41.572349, -49.644093, 0), V(-41.620079, -49.71773, 0), V(-41.672234, -49.788127, 0), V(-41.729716, -49.853961, 0), V(-41.790881, -49.916857, 0), V(-41.857257, -49.975475, 0), V(-41.928544, -50.029833, 0), V(-42.003877, -50.081244, 0), V(-42.083639, -50.127622, 0), V(-42.165957, -50.170452, 0), V(-42.250425, -50.207147, 0), V(-42.336085, -50.238327, 0), V(-42.422721, -50.264922, 0), V(-42.511062, -50.284342, 0), V(-42.600509, -50.298156, 0), V(-42.690941, -50.307771, 0), V(-42.751759, -50.308504, 0), V(-42.782312, -50.308872, 0)], [4, 1, 1, 1, 1, 1, 1, 1, 1, 1, 1, 1, 1, 1, 1, 1, 1, 1, 1, 1, 1, 1, 1, 1, 4], [0, 1.02996197, 2.043119294, 3.035359645, 4.018872909, 4.991431989, 5.957985074, 6.929999688, 7.912076566, 8.892894881, 9.867085534, 10.843653904, 11.817741046, 12.803660682, 13.806313499, 14.818574707, 15.856120519, 16.894564902, 17.924820532, 18.937903209, 19.946497019, 20.957711757, 21.963978472, 22.977135795, 24], False, 3, [1, 1, 1, 1, 1, 1, 1, 1, 1, 1, 1, 1, 1, 1, 1, 1, 1, 1, 1, 1, 1, 1, 1, 1, 1, 1, 1], False), False)  # 4
sketch5.addGeometry(Part.BSplineCurve([V(-42.782312, -47.622334, 0), V(-42.750917, -47.622765, 0), V(-42.688649, -47.623621, 0), V(-42.596034, -47.632237, 0), V(-42.505088, -47.646055, 0), V(-42.415937, -47.665949, 0), V(-42.328684, -47.690848, 0), V(-42.242963, -47.720427, 0), V(-42.159689, -47.757331, 0), V(-42.077811, -47.798105, 0), V(-41.999437, -47.844587, 0), V(-41.92462, -47.894515, 0), V(-41.855245, -47.949822, 0), V(-41.789578, -48.008168, 0), V(-41.72823, -48.070728, 0), V(-41.671616, -48.137421, 0), V(-41.619927, -48.208669, 0), V(-41.572333, -48.283313, 0), V(-41.529876, -48.361324, 0), V(-41.492883, -48.441633, 0), V(-41.4615, -48.524043, 0), V(-41.436165, -48.608671, 0), V(-41.416311, -48.695359, 0), V(-41.402632, -48.784221, 0), V(-41.393063, -48.87508, 0), V(-41.392341, -48.936533, 0), V(-41.391978, -48.967511, 0)], [4, 1, 1, 1, 1, 1, 1, 1, 1, 1, 1, 1, 1, 1, 1, 1, 1, 1, 1, 1, 1, 1, 1, 1, 4], [0, 1.047197238, 2.076906641, 3.100256066, 4.114471768, 5.12198147, 6.126382909, 7.136867548, 8.15857795, 9.17633901, 10.174870724, 11.156907918, 12.133735059, 13.104061851, 14.077631395, 15.04955518, 16.038496417, 17.029181396, 18.010275684, 18.986308667, 19.968651475, 20.955262928, 21.950658345, 22.966943676, 24], False, 3, [1, 1, 1, 1, 1, 1, 1, 1, 1, 1, 1, 1, 1, 1, 1, 1, 1, 1, 1, 1, 1, 1, 1, 1, 1, 1, 1], False), False)  # 5
sketch5.addGeometry(Part.BSplineCurve([V(-44.159927, -48.952883, 0), V(-44.15877, -48.907015, 0), V(-44.156495, -48.816781, 0), V(-44.136576, -48.684548, 0), V(-44.105895, -48.557468, 0), V(-44.060667, -48.436236, 0), V(-44.004106, -48.319809, 0), V(-43.934232, -48.209221, 0), V(-43.851447, -48.104442, 0), V(-43.757409, -48.006202, 0), V(-43.654609, -47.916535, 0), V(-43.54545, -47.837828, 0), V(-43.431102, -47.771235, 0), V(-43.311265, -47.716983, 0), V(-43.186581, -47.673994, 0), V(-43.056245, -47.644531, 0), V(-42.921125, -47.62514, 0), V(-42.829023, -47.623278, 0), V(-42.782312, -47.622334, 0)], [4, 1, 1, 1, 1, 1, 1, 1, 1, 1, 1, 1, 1, 1, 1, 1, 4], [0, 1.032063989, 2.030389145, 3.003944642, 3.970395727, 4.937377036, 5.913328081, 6.909231446, 7.93887556, 8.970685674, 9.976071282, 10.964166581, 11.944589148, 12.933237628, 13.927779006, 14.949070134, 16], False, 3, [1, 1, 1, 1, 1, 1, 1, 1, 1, 1, 1, 1, 1, 1, 1, 1, 1, 1, 1], False), False)  # 6
sketch5.addGeometry(Part.BSplineCurve([V(-42.782312, -50.308872, 0), V(-42.812443, -50.308505, 0), V(-42.872416, -50.307774, 0), V(-42.961574, -50.298144, 0), V(-43.049559, -50.284419, 0), V(-43.13639, -50.264841, 0), V(-43.221704, -50.238168, 0), V(-43.306295, -50.207469, 0), V(-43.389392, -50.170076, 0), V(-43.470721, -50.127828, 0), V(-43.549565, -50.081065, 0), V(-43.623962, -50.029384, 0), V(-43.694105, -49.973995, 0), V(-43.759821, -49.91477, 0), V(-43.820919, -49.851406, 0), V(-43.878599, -49.784865, 0), V(-43.930551, -49.713244, 0), V(-43.978163, -49.638486, 0), V(-44.020769, -49.560688, 0), V(-44.058656, -49.480669, 0), V(-44.089648, -49.397777, 0), V(-44.114923, -49.31291, 0), V(-44.135878, -49.226203, 0), V(-44.149153, -49.136998, 0), V(-44.158889, -49.045744, 0), V(-44.159578, -48.984075, 0), V(-44.159927, -48.952883, 0)], [4, 1, 1, 1, 1, 1, 1, 1, 1, 1, 1, 1, 1, 1, 1, 1, 1, 1, 1, 1, 1, 1, 1, 1, 4], [0, 1.008559885, 2.007477868, 2.99961109, 3.989939068, 4.984837346, 5.991145699, 7.001802488, 8.033829008, 9.059044045, 10.069351652, 11.065060232, 12.050310815, 13.029377138, 14.011219647, 14.996725999, 15.989392538, 16.977580475, 17.965360261, 18.951710183, 19.937753436, 20.929683414, 21.935841486, 22.955955122, 24], False, 3, [1, 1, 1, 1, 1, 1, 1, 1, 1, 1, 1, 1, 1, 1, 1, 1, 1, 1, 1, 1, 1, 1, 1, 1, 1, 1, 1], False), False)  # 7
add_polygon(sketch5, [(-40.45576, -50.553103), (-40.45576, -47.378103), (-40.170824, -47.378103), (-40.170824, -49.871292), (-38.078326, -47.378103), (-38.013452, -47.378103), (-38.013452, -50.553103), (-38.298388, -50.553103), (-38.298388, -48.05419), (-40.395974, -50.553103)])  # lines 8-17
sketch5.addConstraint([
    Sketcher.Constraint("Block", 0),
    Sketcher.Constraint("Block", 1),
    Sketcher.Constraint("Block", 2),
    Sketcher.Constraint("Block", 3),
    Sketcher.Constraint("Block", 4),
    Sketcher.Constraint("Block", 5),
    Sketcher.Constraint("Block", 6),
    Sketcher.Constraint("Block", 7),
    Sketcher.Constraint("Vertical", 8),
    Sketcher.Constraint("Horizontal", 9),
    Sketcher.Constraint("Vertical", 10),
    Sketcher.Constraint("Horizontal", 12),
    Sketcher.Constraint("Vertical", 13),
    Sketcher.Constraint("Horizontal", 14),
    Sketcher.Constraint("Vertical", 15),
    Sketcher.Constraint("Horizontal", 17),
    Sketcher.Constraint("Horizontal", 9, 2, 11, 2),
    Sketcher.Constraint("Horizontal", 14, 2, 16, 2),
    Sketcher.Constraint("Equal", 9, 14),
    Sketcher.Constraint("DistanceY", 8, 1, 8, 2, Q("3.175 mm")),
    Sketcher.Constraint("DistanceY", 10, 2, 10, 1, Q("2.493189 mm")),
    Sketcher.Constraint("Distance", 16, Q("3.262581 mm")),
    Sketcher.Constraint("DistanceX", 9, 1, 9, 2, Q("0.284936 mm")),
    Sketcher.Constraint("DistanceX", 12, 1, 12, 2, Q("0.064874 mm")),
    Sketcher.Constraint("DistanceX", 17, 2, 17, 1, Q("0.059786 mm")),
    Sketcher.Constraint("DistanceY", 15, 1, 15, 2, Q("2.498913 mm")),
    Sketcher.Constraint("DistanceX", 8, 2, -1, 1, Q("40.45576 mm")),
    Sketcher.Constraint("DistanceY", 15, 2, -1, 1, Q("48.05419 mm")),
])
pocket4 = body.newObject("PartDesign::Pocket", "Pocket003")
pocket4.Profile = sketch5
pocket4.Length = 0.2
pocket4.Reversed = True

# Sketch on XZ plane
sketch6 = body.newObject("Sketcher::SketchObject", "Sketch005")
sketch6.AttachmentSupport = (doc.getObject("XZ_Plane"), [""])
sketch6.MapMode = "FlatFace"
sketch6.AttachmentOffset = App.Placement(V(0, 0, -3), App.Rotation())
add_polygon(sketch6, [(-29.88, 86.24), (-29.88, 87.18), (-30.82, 87.18), (-30.82, 87.46), (-29.88, 87.46), (-29.88, 88.4), (-29.59, 88.4), (-29.59, 87.46), (-28.66, 87.46), (-28.66, 87.18), (-29.59, 87.18), (-29.59, 86.24)])  # lines 0-11
sketch6.addConstraint([
    Sketcher.Constraint("Vertical", 0),
    Sketcher.Constraint("Horizontal", 1),
    Sketcher.Constraint("Vertical", 2),
    Sketcher.Constraint("Horizontal", 3),
    Sketcher.Constraint("Vertical", 4),
    Sketcher.Constraint("Horizontal", 5),
    Sketcher.Constraint("Vertical", 6),
    Sketcher.Constraint("Horizontal", 7),
    Sketcher.Constraint("Vertical", 8),
    Sketcher.Constraint("Horizontal", 9),
    Sketcher.Constraint("Vertical", 10),
    Sketcher.Constraint("Horizontal", 11),
    Sketcher.Constraint("Horizontal", 3, 2, 6, 2),
    Sketcher.Constraint("Horizontal", 1, 2, 8, 2),
    Sketcher.Constraint("Vertical", 0, 2, 3, 2),
    Sketcher.Constraint("Vertical", 6, 2, 9, 2),
    Sketcher.Constraint("Equal", 3, 7),
    Sketcher.Constraint("Equal", 9, 0),
    Sketcher.Constraint("Equal", 11, 2),
    Sketcher.Constraint("Equal", 0, 4),
    Sketcher.Constraint("DistanceX", 1, 2, 1, 1, Q("0.936218 mm")),
    Sketcher.Constraint("DistanceX", 5, 1, 5, 2, Q("0.284936 mm")),
    Sketcher.Constraint("DistanceX", 0, 2, -1, 1, Q("29.87916 mm")),
    Sketcher.Constraint("DistanceY", -1, 1, 4, 2, Q("88.40085 mm")),
])
pocket5 = body.newObject("PartDesign::Pocket", "Pocket004")
pocket5.Profile = sketch6
pocket5.Length = 0.2
pocket5.Reversed = True

# Sketch on XZ plane
sketch7 = body.newObject("Sketcher::SketchObject", "Sketch006")
sketch7.AttachmentSupport = (doc.getObject("XZ_Plane"), [""])
sketch7.MapMode = "FlatFace"
sketch7.AttachmentOffset = App.Placement(V(0, 0, -3), App.Rotation())
add_polygon(sketch7, [(29.98, 86.79), (29.98, 87.12), (31.2, 87.12), (31.2, 86.79)])  # lines 0-3
sketch7.addConstraint([
    Sketcher.Constraint("Vertical", 0),
    Sketcher.Constraint("Horizontal", 1),
    Sketcher.Constraint("Vertical", 2),
    Sketcher.Constraint("Horizontal", 3),
    Sketcher.Constraint("DistanceY", 0, 1, 0, 2, Q("0.325641 mm")),
    Sketcher.Constraint("DistanceY", -1, 1, 2, 2, Q("86.789701 mm")),
    Sketcher.Constraint("DistanceX", 1, 1, 1, 2, Q("1.221154 mm")),
    Sketcher.Constraint("DistanceX", -1, 1, 1, 2, Q("31.199809 mm")),
])
pocket6 = body.newObject("PartDesign::Pocket", "Pocket005")
pocket6.Profile = sketch7
pocket6.Length = 0.2
pocket6.Reversed = True

doc.recompute()
